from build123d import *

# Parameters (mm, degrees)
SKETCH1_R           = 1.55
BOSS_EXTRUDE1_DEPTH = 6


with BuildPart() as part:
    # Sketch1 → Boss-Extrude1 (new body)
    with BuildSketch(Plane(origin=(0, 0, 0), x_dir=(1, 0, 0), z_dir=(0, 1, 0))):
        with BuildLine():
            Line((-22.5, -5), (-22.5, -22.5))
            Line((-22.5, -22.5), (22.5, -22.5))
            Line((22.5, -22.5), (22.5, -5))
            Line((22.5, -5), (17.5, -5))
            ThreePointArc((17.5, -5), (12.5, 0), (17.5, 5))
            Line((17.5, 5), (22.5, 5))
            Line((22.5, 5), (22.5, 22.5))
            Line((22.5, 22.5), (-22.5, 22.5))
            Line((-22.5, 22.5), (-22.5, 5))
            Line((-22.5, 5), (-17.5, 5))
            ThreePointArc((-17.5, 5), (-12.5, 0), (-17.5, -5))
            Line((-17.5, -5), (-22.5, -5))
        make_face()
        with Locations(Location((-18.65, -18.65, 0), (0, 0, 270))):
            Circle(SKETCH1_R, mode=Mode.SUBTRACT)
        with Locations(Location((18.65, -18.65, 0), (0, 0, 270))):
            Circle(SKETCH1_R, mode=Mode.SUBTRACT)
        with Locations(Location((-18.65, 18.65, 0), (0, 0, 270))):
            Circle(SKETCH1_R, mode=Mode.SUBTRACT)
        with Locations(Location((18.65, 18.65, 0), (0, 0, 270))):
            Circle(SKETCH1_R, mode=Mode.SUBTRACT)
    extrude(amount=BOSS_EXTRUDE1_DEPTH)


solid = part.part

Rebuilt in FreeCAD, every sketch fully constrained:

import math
import FreeCAD as App
import Part
import Sketcher

doc = App.newDocument("Part")
params = doc.addObject("Spreadsheet::Sheet", "Params")
for row, (alias, value) in enumerate([
    ("sketch1_radius", "5 mm"),
    ("sketch1_diameter", "3.1 mm"),
    ("sketch1_width", "45 mm"),
    ("sketch1_width2", "5 mm"),
    ("sketch1_height", "17.5 mm"),
    ("pad1_length", "6 mm"),
], start=1):
    params.set(f"A{row}", alias)
    params.set(f"B{row}", "=" + value)
    params.setAlias(f"B{row}", alias)

body = doc.addObject("PartDesign::Body", "Body")

sketch1 = body.newObject("Sketcher::SketchObject", "Sketch")
sketch1.AttachmentSupport = (doc.getObject("XZ_Plane"), [""])
sketch1.MapMode = "FlatFace"
sketch1.addGeometry([
    Part.LineSegment(App.Vector(-22.5, 5, 0), App.Vector(-22.5, 22.5, 0)),
    Part.LineSegment(App.Vector(-22.5, 22.5, 0), App.Vector(22.5, 22.5, 0)),
    Part.LineSegment(App.Vector(22.5, 22.5, 0), App.Vector(22.5, 5, 0)),
    Part.LineSegment(App.Vector(22.5, 5, 0), App.Vector(17.5, 5, 0)),
    Part.ArcOfCircle(Part.Circle(App.Vector(17.5, 0, 0), App.Vector(0, 0, 1), 5), math.radians(90), math.radians(270)),
    Part.LineSegment(App.Vector(17.5, -5, 0), App.Vector(22.5, -5, 0)),
    Part.LineSegment(App.Vector(22.5, -5, 0), App.Vector(22.5, -22.5, 0)),
    Part.LineSegment(App.Vector(22.5, -22.5, 0), App.Vector(-22.5, -22.5, 0)),
    Part.LineSegment(App.Vector(-22.5, -22.5, 0), App.Vector(-22.5, -5, 0)),
    Part.LineSegment(App.Vector(-22.5, -5, 0), App.Vector(-17.5, -5, 0)),
    Part.ArcOfCircle(Part.Circle(App.Vector(-17.5, 0, 0), App.Vector(0, 0, 1), 5), math.radians(-90), math.radians(90)),
    Part.LineSegment(App.Vector(-17.5, 5, 0), App.Vector(-22.5, 5, 0)),
    Part.Circle(App.Vector(-18.65, 18.65, 0), App.Vector(0, 0, 1), 1.55),
    Part.Circle(App.Vector(18.65, 18.65, 0), App.Vector(0, 0, 1), 1.55),
    Part.Circle(App.Vector(-18.65, -18.65, 0), App.Vector(0, 0, 1), 1.55),
    Part.Circle(App.Vector(18.65, -18.65, 0), App.Vector(0, 0, 1), 1.55),
], False)
sketch1.addConstraint([
    Sketcher.Constraint("Coincident", 0, 2, 1, 1),
    Sketcher.Constraint("Coincident", 1, 2, 2, 1),
    Sketcher.Constraint("Coincident", 2, 2, 3, 1),
    Sketcher.Constraint("Tangent", 3, 2, 4, 1),
    Sketcher.Constraint("Tangent", 4, 2, 5, 1),
    Sketcher.Constraint("Coincident", 5, 2, 6, 1),
    Sketcher.Constraint("Coincident", 6, 2, 7, 1),
    Sketcher.Constraint("Coincident", 7, 2, 8, 1),
    Sketcher.Constraint("Coincident", 8, 2, 9, 1),
    Sketcher.Constraint("Tangent", 9, 2, 10, 1),
    Sketcher.Constraint("Tangent", 10, 2, 11, 1),
    Sketcher.Constraint("Coincident", 11, 2, 0, 1),
    Sketcher.Constraint("Vertical", 0),
    Sketcher.Constraint("Horizontal", 1),
    Sketcher.Constraint("Vertical", 2),
    Sketcher.Constraint("Horizontal", 3),
    Sketcher.Constraint("Horizontal", 5),
    Sketcher.Constraint("Vertical", 6),
    Sketcher.Constraint("Horizontal", 7),
    Sketcher.Constraint("Vertical", 8),
    Sketcher.Constraint("Horizontal", 9),
    Sketcher.Constraint("Horizontal", 11),
    Sketcher.Constraint("Equal", 4, 10),
    Sketcher.Constraint("Equal", 12, 13),
    Sketcher.Constraint("Equal", 13, 14),
    Sketcher.Constraint("Equal", 14, 15),
    Sketcher.Constraint("Symmetric", 4, 3, 10, 3, -1, 1),
    Sketcher.Constraint("Symmetric", 13, 3, 14, 3, -1, 1),
    Sketcher.Constraint("Symmetric", 12, 3, 15, 3, -1, 1),
    Sketcher.Constraint("Symmetric", 0, 2, 6, 2, -1, 1),
    Sketcher.Constraint("Symmetric", 12, 3, 13, 3, -2),
    Sketcher.Constraint("Symmetric", 5, 2, 8, 2, -2),
    Sketcher.Constraint("Vertical", 2, 2, 5, 2),
    Sketcher.Constraint("Radius", 4, 5.0),
    Sketcher.Constraint("Diameter", 12, 3.1),
    Sketcher.Constraint("DistanceX", 1, 1, 1, 2, 45.0),
    Sketcher.Constraint("DistanceX", 3, 2, 3, 1, 5.0),
    Sketcher.Constraint("DistanceY", 0, 1, 0, 2, 17.5),
    Sketcher.Constraint("DistanceX", 12, 3, 13, 3, 37.3),
    Sketcher.Constraint("DistanceY", 14, 3, 12, 3, 37.3),
])
sketch1.setExpression("Constraints[33]", "Params.sketch1_radius")
sketch1.setExpression("Constraints[34]", "Params.sketch1_diameter")
sketch1.setExpression("Constraints[35]", "Params.sketch1_width")
sketch1.setExpression("Constraints[36]", "Params.sketch1_width2")
sketch1.setExpression("Constraints[37]", "Params.sketch1_height")
pad1 = body.newObject("PartDesign::Pad", "Pad")
pad1.Profile = sketch1
pad1.setExpression("Length", "Params.pad1_length")
pad1.Reversed = True

doc.recompute()
